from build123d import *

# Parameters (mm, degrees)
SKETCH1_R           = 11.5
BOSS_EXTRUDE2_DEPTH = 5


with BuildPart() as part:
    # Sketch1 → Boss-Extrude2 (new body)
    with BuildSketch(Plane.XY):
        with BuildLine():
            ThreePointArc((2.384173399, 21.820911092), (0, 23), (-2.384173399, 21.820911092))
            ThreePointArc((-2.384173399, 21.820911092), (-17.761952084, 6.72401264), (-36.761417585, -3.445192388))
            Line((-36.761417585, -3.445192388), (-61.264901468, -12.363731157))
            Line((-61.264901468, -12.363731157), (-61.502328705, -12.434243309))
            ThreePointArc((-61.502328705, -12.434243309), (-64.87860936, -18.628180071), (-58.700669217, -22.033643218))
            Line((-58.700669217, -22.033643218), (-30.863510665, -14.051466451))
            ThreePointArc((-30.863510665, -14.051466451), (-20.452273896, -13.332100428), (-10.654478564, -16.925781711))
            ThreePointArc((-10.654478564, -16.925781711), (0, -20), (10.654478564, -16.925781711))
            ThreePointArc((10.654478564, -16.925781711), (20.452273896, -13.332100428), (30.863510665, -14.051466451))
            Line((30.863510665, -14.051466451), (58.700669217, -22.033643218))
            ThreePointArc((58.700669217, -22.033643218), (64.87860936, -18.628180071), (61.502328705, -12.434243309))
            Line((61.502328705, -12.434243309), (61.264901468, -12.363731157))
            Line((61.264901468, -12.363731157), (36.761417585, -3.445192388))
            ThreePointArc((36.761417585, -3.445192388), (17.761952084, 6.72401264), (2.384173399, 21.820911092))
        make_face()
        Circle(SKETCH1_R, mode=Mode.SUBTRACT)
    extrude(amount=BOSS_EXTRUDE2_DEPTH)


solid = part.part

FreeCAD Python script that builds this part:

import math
import FreeCAD as App
import Part
import Sketcher

V = App.Vector
Q = App.Units.Quantity

doc = App.newDocument("Part")
body = doc.addObject("PartDesign::Body", "Body")

sketch1 = body.newObject("Sketcher::SketchObject", "Sketch")
sketch1.AttachmentSupport = (doc.getObject("XY_Plane"), [""])
sketch1.MapMode = "FlatFace"
sketch1.addGeometry(Part.ArcOfCircle(Part.Circle(V(0, 20, 0), V(0, 0, 1), 3), math.radians(37), math.radians(143)), False)
sketch1.addGeometry(Part.ArcOfCircle(Part.Circle(V(-62.73, 67.91, 0), V(0, 0, 1), 75.94), math.radians(-70), math.radians(-37)), False)
sketch1.addGeometry(Part.LineSegment(V(-36.76, -3.45, 0), V(-61.26, -12.36, 0)), False)
sketch1.addGeometry(Part.LineSegment(V(-61.26, -12.36, 0), V(-61.5, -12.43, 0)), False)
sketch1.addGeometry(Part.ArcOfCircle(Part.Circle(V(-60.08, -17.23, 0), V(0, 0, 1), 5), math.radians(107), math.radians(286)), False)
sketch1.addGeometry(Part.LineSegment(V(-58.7, -22.03, 0), V(-30.86, -14.05, 0)), False)
sketch1.addGeometry(Part.ArcOfCircle(Part.Circle(V(-23.97, -38.08, 0), V(0, 0, 1), 25), math.radians(58), math.radians(106)), False)
sketch1.addGeometry(Part.ArcOfCircle(Part.Circle(V(0, 0, 0), V(0, 0, 1), 20), math.radians(-122), math.radians(-58)), False)
sketch1.addGeometry(Part.ArcOfCircle(Part.Circle(V(23.97, -38.08, 0), V(0, 0, 1), 25), math.radians(74), math.radians(122)), False)
sketch1.addGeometry(Part.LineSegment(V(30.86, -14.05, 0), V(58.7, -22.03, 0)), False)
sketch1.addGeometry(Part.ArcOfCircle(Part.Circle(V(60.08, -17.23, 0), V(0, 0, 1), 5), math.radians(-106), math.radians(73)), False)
sketch1.addGeometry(Part.LineSegment(V(61.5, -12.43, 0), V(61.26, -12.36, 0)), False)
sketch1.addGeometry(Part.LineSegment(V(61.26, -12.36, 0), V(36.76, -3.45, 0)), False)
sketch1.addGeometry(Part.ArcOfCircle(Part.Circle(V(62.73, 67.91, 0), V(0, 0, 1), 75.94), math.radians(-143), math.radians(-110)), False)
sketch1.addGeometry(Part.Circle(V(0, 0, 0), V(0, 0, 1), 11.5), False)
sketch1.addConstraint(Sketcher.Constraint("Tangent", 0, 2, 1, 2))
sketch1.addConstraint(Sketcher.Constraint("Tangent", 1, 1, 2, 1))
sketch1.addConstraint(Sketcher.Constraint("Coincident", 2, 2, 3, 1))
sketch1.addConstraint(Sketcher.Constraint("Tangent", 3, 2, 4, 1))
sketch1.addConstraint(Sketcher.Constraint("Tangent", 4, 2, 5, 1))
sketch1.addConstraint(Sketcher.Constraint("Tangent", 5, 2, 6, 2))
sketch1.addConstraint(Sketcher.Constraint("Tangent", 6, 1, 7, 1))
sketch1.addConstraint(Sketcher.Constraint("Tangent", 7, 2, 8, 2))
sketch1.addConstraint(Sketcher.Constraint("Tangent", 8, 1, 9, 1))
sketch1.addConstraint(Sketcher.Constraint("Tangent", 9, 2, 10, 1))
sketch1.addConstraint(Sketcher.Constraint("Tangent", 10, 2, 11, 1))
sketch1.addConstraint(Sketcher.Constraint("Coincident", 11, 2, 12, 1))
sketch1.addConstraint(Sketcher.Constraint("Tangent", 12, 2, 13, 2))
sketch1.addConstraint(Sketcher.Constraint("Tangent", 13, 1, 0, 1))
sketch1.addConstraint(Sketcher.Constraint("Coincident", 7, 3, -1, 1))
sketch1.addConstraint(Sketcher.Constraint("Coincident", 14, 3, -1, 1))
sketch1.addConstraint(Sketcher.Constraint("Equal", 6, 8))
sketch1.addConstraint(Sketcher.Constraint("Equal", 4, 10))
sketch1.addConstraint(Sketcher.Constraint("Equal", 1, 13))
sketch1.addConstraint(Sketcher.Constraint("Symmetric", 4, 3, 10, 3, -2))
sketch1.addConstraint(Sketcher.Constraint("Symmetric", 1, 3, 13, 3, -2))
sketch1.addConstraint(Sketcher.Constraint("Symmetric", 2, 2, 11, 2, -2))
sketch1.addConstraint(Sketcher.Constraint("Horizontal", 6, 3, 8, 3))
sketch1.addConstraint(Sketcher.Constraint("Diameter", 14, 23.0))
sketch1.addConstraint(Sketcher.Constraint("Radius", 0, 3.0))
sketch1.addConstraint(Sketcher.Constraint("Radius", 4, 5.0))
sketch1.addConstraint(Sketcher.Constraint("Radius", 6, 25.0))
sketch1.addConstraint(Sketcher.Constraint("Radius", 7, 20.0))
sketch1.addConstraint(Sketcher.Constraint("Angle", 2, Q("-160 deg")))
sketch1.addConstraint(Sketcher.Constraint("Angle", 5, Q("16 deg")))
sketch1.addConstraint(Sketcher.Constraint("DistanceY", -1, 1, 0, 3, 20.0))
sketch1.addConstraint(Sketcher.Constraint("Radius", 1, 75.937521))
sketch1.addConstraint(Sketcher.Constraint("DistanceX", 2, 2, -1, 1, 61.264901))
sketch1.addConstraint(Sketcher.Constraint("DistanceY", 4, 2, 3, 2, 9.5994))
sketch1.addConstraint(Sketcher.Constraint("DistanceX", 6, 3, 6, 1, 13.318098))
sketch1.addConstraint(Sketcher.Constraint("Distance", 5, 28.95898))
pad1 = body.newObject("PartDesign::Pad", "Pad")
pad1.Profile = sketch1
pad1.Length = 5

doc.recompute()
